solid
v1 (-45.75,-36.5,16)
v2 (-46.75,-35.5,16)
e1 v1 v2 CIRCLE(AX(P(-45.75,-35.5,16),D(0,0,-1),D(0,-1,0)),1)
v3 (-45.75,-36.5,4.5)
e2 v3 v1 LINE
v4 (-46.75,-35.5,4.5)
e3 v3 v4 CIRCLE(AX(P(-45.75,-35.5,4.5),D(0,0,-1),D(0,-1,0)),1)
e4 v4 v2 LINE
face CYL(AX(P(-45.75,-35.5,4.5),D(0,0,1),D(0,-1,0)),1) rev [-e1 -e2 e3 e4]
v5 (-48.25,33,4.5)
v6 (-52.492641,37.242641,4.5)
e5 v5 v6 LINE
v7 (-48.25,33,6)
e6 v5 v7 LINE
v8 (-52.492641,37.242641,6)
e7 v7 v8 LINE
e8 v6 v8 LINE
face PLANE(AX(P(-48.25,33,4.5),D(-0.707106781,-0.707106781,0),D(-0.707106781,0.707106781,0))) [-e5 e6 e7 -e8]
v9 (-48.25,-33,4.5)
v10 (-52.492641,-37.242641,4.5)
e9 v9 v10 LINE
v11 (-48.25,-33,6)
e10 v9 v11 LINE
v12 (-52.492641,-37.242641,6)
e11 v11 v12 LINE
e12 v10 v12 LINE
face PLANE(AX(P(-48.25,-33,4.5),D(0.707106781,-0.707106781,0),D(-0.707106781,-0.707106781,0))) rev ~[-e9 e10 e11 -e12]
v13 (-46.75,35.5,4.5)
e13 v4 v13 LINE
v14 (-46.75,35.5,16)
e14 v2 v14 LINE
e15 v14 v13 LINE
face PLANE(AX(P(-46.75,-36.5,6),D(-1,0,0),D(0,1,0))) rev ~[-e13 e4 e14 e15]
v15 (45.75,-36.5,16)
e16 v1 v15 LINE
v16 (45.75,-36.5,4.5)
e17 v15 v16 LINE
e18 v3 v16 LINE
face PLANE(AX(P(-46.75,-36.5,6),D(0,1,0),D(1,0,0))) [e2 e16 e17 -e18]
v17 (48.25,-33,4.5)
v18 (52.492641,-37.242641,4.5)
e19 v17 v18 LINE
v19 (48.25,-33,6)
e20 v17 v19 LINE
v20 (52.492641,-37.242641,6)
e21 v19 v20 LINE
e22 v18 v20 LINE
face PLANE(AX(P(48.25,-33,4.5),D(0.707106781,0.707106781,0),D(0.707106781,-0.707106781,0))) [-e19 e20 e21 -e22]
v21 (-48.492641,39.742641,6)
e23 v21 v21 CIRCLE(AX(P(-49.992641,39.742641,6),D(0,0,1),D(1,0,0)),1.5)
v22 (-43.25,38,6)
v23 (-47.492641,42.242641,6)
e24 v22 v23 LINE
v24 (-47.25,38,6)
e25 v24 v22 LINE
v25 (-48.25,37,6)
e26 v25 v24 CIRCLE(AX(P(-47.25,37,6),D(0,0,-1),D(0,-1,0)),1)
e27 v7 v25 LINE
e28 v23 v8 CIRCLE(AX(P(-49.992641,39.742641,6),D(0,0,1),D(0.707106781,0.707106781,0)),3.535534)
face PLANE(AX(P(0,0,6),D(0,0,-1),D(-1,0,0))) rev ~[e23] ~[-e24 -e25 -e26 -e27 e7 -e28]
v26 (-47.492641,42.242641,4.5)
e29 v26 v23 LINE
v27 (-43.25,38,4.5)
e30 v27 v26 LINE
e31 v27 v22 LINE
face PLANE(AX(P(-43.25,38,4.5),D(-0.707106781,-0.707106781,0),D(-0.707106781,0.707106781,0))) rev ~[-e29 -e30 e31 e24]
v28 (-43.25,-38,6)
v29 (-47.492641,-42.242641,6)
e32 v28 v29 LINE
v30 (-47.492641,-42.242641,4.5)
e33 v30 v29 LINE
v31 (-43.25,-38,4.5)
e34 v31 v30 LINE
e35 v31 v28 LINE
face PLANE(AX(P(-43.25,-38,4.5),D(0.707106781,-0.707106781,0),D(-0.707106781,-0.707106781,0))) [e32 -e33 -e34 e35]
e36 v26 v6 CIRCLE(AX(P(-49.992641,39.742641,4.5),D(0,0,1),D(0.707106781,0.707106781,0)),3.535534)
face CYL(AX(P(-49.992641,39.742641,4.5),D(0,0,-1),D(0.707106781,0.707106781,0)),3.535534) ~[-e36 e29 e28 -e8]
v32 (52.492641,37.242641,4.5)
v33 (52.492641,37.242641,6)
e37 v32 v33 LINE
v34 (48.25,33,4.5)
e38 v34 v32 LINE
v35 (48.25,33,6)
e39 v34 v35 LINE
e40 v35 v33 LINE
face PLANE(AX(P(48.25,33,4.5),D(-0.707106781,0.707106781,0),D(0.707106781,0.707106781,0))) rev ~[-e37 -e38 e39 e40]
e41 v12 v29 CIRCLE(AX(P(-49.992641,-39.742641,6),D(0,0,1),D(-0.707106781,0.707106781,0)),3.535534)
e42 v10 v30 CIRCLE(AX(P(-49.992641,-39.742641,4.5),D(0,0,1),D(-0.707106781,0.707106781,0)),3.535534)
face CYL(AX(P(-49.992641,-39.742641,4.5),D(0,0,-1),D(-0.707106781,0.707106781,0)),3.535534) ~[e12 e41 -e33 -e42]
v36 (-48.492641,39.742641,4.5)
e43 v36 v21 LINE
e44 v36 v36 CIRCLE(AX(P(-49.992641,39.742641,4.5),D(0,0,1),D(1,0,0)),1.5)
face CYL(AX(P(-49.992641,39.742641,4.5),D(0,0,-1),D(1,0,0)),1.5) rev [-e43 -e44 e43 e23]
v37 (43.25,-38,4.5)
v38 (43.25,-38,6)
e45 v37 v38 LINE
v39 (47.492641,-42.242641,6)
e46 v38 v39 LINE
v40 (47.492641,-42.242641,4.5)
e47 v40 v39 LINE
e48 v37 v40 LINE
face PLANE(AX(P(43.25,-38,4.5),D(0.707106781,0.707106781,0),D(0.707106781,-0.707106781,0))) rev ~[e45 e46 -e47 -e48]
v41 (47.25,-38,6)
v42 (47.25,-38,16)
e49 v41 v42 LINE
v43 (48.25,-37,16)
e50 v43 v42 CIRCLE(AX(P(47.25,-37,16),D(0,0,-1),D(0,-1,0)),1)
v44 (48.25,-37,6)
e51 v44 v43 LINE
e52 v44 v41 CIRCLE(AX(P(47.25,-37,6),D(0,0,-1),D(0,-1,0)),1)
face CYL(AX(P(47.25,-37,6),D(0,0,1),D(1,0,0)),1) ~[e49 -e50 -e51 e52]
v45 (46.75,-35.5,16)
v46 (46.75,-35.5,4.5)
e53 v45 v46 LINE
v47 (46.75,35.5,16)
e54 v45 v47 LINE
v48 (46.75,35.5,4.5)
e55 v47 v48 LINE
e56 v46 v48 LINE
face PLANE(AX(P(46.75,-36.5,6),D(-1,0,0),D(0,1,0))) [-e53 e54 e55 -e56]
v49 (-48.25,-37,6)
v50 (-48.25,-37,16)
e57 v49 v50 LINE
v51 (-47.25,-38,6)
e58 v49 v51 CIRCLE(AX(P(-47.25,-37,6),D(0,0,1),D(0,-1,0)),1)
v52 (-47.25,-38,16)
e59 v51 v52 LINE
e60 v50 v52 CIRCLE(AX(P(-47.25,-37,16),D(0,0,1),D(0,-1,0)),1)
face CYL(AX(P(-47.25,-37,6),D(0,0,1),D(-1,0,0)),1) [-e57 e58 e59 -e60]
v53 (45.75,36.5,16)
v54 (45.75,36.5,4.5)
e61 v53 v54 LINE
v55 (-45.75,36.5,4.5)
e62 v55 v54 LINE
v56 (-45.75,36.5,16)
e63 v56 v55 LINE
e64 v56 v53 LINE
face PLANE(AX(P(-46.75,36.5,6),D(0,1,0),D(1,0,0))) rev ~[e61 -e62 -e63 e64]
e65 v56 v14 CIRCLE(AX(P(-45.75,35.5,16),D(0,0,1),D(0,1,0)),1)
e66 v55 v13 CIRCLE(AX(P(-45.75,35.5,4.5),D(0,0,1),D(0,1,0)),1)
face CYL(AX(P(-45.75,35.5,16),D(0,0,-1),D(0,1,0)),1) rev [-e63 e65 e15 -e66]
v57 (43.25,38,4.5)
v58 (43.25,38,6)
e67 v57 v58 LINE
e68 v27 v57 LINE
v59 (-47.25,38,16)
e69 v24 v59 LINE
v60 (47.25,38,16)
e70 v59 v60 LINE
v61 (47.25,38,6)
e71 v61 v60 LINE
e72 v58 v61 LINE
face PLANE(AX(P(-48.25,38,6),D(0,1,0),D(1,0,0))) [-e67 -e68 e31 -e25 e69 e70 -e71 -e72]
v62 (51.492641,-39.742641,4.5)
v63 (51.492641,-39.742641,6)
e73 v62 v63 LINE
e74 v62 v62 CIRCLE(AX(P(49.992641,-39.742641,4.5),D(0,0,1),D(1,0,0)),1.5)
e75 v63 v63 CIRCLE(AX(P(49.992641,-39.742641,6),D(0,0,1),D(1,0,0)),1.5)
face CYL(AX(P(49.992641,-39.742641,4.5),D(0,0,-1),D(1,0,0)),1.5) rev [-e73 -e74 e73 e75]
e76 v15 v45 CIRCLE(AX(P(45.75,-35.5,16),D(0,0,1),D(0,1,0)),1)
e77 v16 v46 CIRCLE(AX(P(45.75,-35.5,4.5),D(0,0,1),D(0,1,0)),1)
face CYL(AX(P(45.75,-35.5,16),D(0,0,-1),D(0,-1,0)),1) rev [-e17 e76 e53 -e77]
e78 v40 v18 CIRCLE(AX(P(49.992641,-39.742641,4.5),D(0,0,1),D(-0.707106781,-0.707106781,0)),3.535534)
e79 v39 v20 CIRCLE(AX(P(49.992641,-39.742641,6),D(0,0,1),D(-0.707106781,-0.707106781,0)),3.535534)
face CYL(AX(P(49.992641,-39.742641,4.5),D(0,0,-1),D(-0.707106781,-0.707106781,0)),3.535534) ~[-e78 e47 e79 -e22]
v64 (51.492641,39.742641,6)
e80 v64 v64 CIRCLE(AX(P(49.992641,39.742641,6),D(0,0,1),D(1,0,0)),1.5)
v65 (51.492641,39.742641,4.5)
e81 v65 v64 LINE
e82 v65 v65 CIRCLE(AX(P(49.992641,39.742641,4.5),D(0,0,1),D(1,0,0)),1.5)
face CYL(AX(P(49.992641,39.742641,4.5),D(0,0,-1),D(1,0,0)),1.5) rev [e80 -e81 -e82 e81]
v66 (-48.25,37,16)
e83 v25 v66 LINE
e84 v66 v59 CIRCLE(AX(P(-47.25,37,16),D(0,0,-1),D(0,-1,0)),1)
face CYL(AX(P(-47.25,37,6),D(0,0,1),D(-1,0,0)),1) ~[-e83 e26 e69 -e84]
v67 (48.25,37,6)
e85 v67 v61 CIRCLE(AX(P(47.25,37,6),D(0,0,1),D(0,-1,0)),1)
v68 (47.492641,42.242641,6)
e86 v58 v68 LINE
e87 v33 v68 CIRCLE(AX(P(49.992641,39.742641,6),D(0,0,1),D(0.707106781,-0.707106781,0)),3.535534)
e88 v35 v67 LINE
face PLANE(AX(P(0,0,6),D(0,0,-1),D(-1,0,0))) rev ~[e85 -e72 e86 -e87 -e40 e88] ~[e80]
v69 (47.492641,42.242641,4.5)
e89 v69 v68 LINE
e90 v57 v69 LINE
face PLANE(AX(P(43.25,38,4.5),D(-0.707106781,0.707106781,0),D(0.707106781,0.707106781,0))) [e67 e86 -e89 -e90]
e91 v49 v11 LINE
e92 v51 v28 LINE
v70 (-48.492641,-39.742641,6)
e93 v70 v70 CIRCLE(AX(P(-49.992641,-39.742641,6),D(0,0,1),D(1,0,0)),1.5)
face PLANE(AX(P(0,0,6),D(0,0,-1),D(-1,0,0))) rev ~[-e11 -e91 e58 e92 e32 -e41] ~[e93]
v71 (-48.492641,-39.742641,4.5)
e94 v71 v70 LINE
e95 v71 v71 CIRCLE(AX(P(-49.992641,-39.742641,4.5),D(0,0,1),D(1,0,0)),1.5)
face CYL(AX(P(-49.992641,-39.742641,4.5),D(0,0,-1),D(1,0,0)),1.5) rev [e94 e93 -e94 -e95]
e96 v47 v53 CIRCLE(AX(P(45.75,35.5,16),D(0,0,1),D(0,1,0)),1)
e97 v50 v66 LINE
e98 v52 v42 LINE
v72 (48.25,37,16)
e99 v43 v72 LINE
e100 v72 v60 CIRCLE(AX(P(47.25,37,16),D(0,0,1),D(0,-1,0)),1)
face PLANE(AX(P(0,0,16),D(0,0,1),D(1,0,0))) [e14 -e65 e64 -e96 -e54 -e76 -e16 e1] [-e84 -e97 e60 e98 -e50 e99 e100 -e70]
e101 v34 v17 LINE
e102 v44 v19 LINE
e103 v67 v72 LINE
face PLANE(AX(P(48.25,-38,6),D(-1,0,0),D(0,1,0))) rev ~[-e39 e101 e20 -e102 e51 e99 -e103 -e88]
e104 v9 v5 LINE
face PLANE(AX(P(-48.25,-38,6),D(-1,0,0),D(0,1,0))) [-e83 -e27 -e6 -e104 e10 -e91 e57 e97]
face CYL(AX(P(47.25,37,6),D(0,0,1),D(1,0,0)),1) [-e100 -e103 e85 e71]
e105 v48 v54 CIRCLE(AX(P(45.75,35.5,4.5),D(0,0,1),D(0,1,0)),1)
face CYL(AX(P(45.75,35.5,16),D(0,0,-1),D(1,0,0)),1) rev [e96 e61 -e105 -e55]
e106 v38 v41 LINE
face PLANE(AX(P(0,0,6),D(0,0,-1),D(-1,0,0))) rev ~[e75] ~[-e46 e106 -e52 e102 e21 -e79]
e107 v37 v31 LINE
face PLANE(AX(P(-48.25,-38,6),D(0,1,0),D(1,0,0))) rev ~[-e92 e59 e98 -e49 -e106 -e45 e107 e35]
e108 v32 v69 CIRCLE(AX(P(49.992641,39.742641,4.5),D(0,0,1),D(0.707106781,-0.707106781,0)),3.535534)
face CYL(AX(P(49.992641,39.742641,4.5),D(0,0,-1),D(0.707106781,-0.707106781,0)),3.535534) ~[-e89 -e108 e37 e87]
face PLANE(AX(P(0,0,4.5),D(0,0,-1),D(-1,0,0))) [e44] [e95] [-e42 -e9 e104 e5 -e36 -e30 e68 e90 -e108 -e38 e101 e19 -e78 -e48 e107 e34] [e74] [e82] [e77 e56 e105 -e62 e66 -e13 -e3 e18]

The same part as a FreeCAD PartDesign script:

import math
import FreeCAD as App
import Part
import Sketcher
Q = App.Units.Quantity


def edges_at(feature, points):
    """Names of the edges that pass closest to the given points."""
    edges = feature.Shape.Edges
    near = lambda p: min(range(len(edges)), key=lambda i: edges[i].distToShape(Part.Vertex(*p))[0])
    return sorted({f"Edge{near(p) + 1}" for p in points})

doc = App.newDocument("Part")
params = doc.addObject("Spreadsheet::Sheet", "Params")
for row, (alias, value) in enumerate([
    ("sketch1_diameter", "3 mm"),
    ("sketch1_height", "66 mm"),
    ("sketch1_height2", "73 mm"),
    ("sketch1_length", "6 mm"),
    ("sketch1_width", "86.5 mm"),
    ("pad1_length", "1.5 mm"),
    ("sketch2_height", "76 mm"),
    ("sketch2_height2", "73 mm"),
    ("sketch2_width", "96.5 mm"),
    ("sketch2_width2", "93.5 mm"),
    ("pad2_length", "10 mm"),
    ("fillet_radius", "1 mm"),
], start=1):
    params.set(f"A{row}", alias)
    params.set(f"B{row}", "=" + value)
    params.setAlias(f"B{row}", alias)

body = doc.addObject("PartDesign::Body", "Body")

sketch1 = body.newObject("Sketcher::SketchObject", "Sketch")
sketch1.AttachmentSupport = (doc.getObject("XY_Plane"), [""])
sketch1.MapMode = "FlatFace"
sketch1.addGeometry([
    Part.LineSegment(App.Vector(-48.2, 33, 0), App.Vector(-48.2, -33, 0)),
    Part.LineSegment(App.Vector(-48.2, -33, 0), App.Vector(-52.5, -37.2, 0)),
    Part.ArcOfCircle(Part.Circle(App.Vector(-50, -39.7, 0), App.Vector(0, 0, 1), 3.5), math.radians(135), math.radians(315)),
    Part.LineSegment(App.Vector(-47.5, -42.2, 0), App.Vector(-43.2, -38, 0)),
    Part.LineSegment(App.Vector(-43.2, -38, 0), App.Vector(43.2, -38, 0)),
    Part.LineSegment(App.Vector(43.2, -38, 0), App.Vector(47.5, -42.2, 0)),
    Part.ArcOfCircle(Part.Circle(App.Vector(50, -39.7, 0), App.Vector(0, 0, 1), 3.5), math.radians(-135), math.radians(45)),
    Part.LineSegment(App.Vector(52.5, -37.2, 0), App.Vector(48.2, -33, 0)),
    Part.LineSegment(App.Vector(48.2, -33, 0), App.Vector(48.2, 33, 0)),
    Part.LineSegment(App.Vector(48.2, 33, 0), App.Vector(52.5, 37.2, 0)),
    Part.ArcOfCircle(Part.Circle(App.Vector(50, 39.7, 0), App.Vector(0, 0, 1), 3.5), math.radians(-45), math.radians(135)),
    Part.LineSegment(App.Vector(47.5, 42.2, 0), App.Vector(43.2, 38, 0)),
    Part.LineSegment(App.Vector(43.2, 38, 0), App.Vector(-43.2, 38, 0)),
    Part.LineSegment(App.Vector(-43.2, 38, 0), App.Vector(-47.5, 42.2, 0)),
    Part.ArcOfCircle(Part.Circle(App.Vector(-50, 39.7, 0), App.Vector(0, 0, 1), 3.5), math.radians(45), math.radians(225)),
    Part.LineSegment(App.Vector(-52.5, 37.2, 0), App.Vector(-48.2, 33, 0)),
    Part.Circle(App.Vector(50, -39.7, 0), App.Vector(0, 0, 1), 1.5),
    Part.LineSegment(App.Vector(-46.8, -36.5, 0), App.Vector(-46.8, 36.5, 0)),
    Part.LineSegment(App.Vector(-46.8, 36.5, 0), App.Vector(46.8, 36.5, 0)),
    Part.LineSegment(App.Vector(46.8, 36.5, 0), App.Vector(46.8, -36.5, 0)),
    Part.LineSegment(App.Vector(46.8, -36.5, 0), App.Vector(-46.8, -36.5, 0)),
    Part.Circle(App.Vector(-50, -39.7, 0), App.Vector(0, 0, 1), 1.5),
    Part.Circle(App.Vector(50, 39.7, 0), App.Vector(0, 0, 1), 1.5),
    Part.Circle(App.Vector(-50, 39.7, 0), App.Vector(0, 0, 1), 1.5),
], False)
sketch1.addConstraint([
    Sketcher.Constraint("Coincident", 0, 2, 1, 1),
    Sketcher.Constraint("Tangent", 1, 2, 2, 1),
    Sketcher.Constraint("Tangent", 2, 2, 3, 1),
    Sketcher.Constraint("Coincident", 3, 2, 4, 1),
    Sketcher.Constraint("Coincident", 4, 2, 5, 1),
    Sketcher.Constraint("Tangent", 5, 2, 6, 1),
    Sketcher.Constraint("Tangent", 6, 2, 7, 1),
    Sketcher.Constraint("Coincident", 7, 2, 8, 1),
    Sketcher.Constraint("Coincident", 8, 2, 9, 1),
    Sketcher.Constraint("Tangent", 9, 2, 10, 1),
    Sketcher.Constraint("Tangent", 10, 2, 11, 1),
    Sketcher.Constraint("Coincident", 11, 2, 12, 1),
    Sketcher.Constraint("Coincident", 12, 2, 13, 1),
    Sketcher.Constraint("Tangent", 13, 2, 14, 1),
    Sketcher.Constraint("Tangent", 14, 2, 15, 1),
    Sketcher.Constraint("Coincident", 15, 2, 0, 1),
    Sketcher.Constraint("Coincident", 17, 2, 18, 1),
    Sketcher.Constraint("Coincident", 18, 2, 19, 1),
    Sketcher.Constraint("Coincident", 19, 2, 20, 1),
    Sketcher.Constraint("Coincident", 20, 2, 17, 1),
    Sketcher.Constraint("Vertical", 0),
    Sketcher.Constraint("Horizontal", 4),
    Sketcher.Constraint("Vertical", 8),
    Sketcher.Constraint("Horizontal", 12),
    Sketcher.Constraint("Vertical", 17),
    Sketcher.Constraint("Horizontal", 18),
    Sketcher.Constraint("Vertical", 19),
    Sketcher.Constraint("Horizontal", 20),
    Sketcher.Constraint("Coincident", 16, 3, 6, 3),
    Sketcher.Constraint("Coincident", 21, 3, 2, 3),
    Sketcher.Constraint("Coincident", 22, 3, 10, 3),
    Sketcher.Constraint("Coincident", 23, 3, 14, 3),
    Sketcher.Constraint("Equal", 2, 6),
    Sketcher.Constraint("Equal", 6, 10),
    Sketcher.Constraint("Equal", 10, 14),
    Sketcher.Constraint("Equal", 16, 21),
    Sketcher.Constraint("Equal", 21, 22),
    Sketcher.Constraint("Equal", 22, 23),
    Sketcher.Constraint("Symmetric", 2, 3, 10, 3, -1, 1),
    Sketcher.Constraint("Symmetric", 6, 3, 14, 3, -1, 1),
    Sketcher.Constraint("Symmetric", 0, 2, 8, 2, -1, 1),
    Sketcher.Constraint("Symmetric", 3, 2, 11, 2, -1, 1),
    Sketcher.Constraint("Symmetric", 17, 2, 19, 2, -1, 1),
    Sketcher.Constraint("Symmetric", 2, 3, 6, 3, -2),
    Sketcher.Constraint("Parallel", 1, 3),
    Sketcher.Constraint("Perpendicular", 3, 5),
    Sketcher.Constraint("Parallel", 5, 7),
    Sketcher.Constraint("Perpendicular", 11, 13),
    Sketcher.Constraint("Parallel", 13, 15),
    Sketcher.Constraint("Horizontal", 2, 2, 5, 2),
    Sketcher.Constraint("Equal", 1, 3),
    Sketcher.Constraint("Diameter", 16, Q("3 mm")),
    Sketcher.Constraint("DistanceY", 0, 2, 0, 1, Q("66 mm")),
    Sketcher.Constraint("DistanceY", 17, 1, 17, 2, Q("73 mm")),
    Sketcher.Constraint("Distance", 1, Q("6 mm")),
    Sketcher.Constraint("DistanceX", 4, 1, 4, 2, Q("86.5 mm")),
    Sketcher.Constraint("DistanceX", 18, 1, 18, 2, Q("93.5 mm")),
    Sketcher.Constraint("DistanceY", 3, 2, -1, 1, Q("38 mm")),
])
sketch1.setExpression("Constraints[51]", "Params.sketch1_diameter")
sketch1.setExpression("Constraints[52]", "Params.sketch1_height")
sketch1.setExpression("Constraints[53]", "Params.sketch1_height2")
sketch1.setExpression("Constraints[54]", "Params.sketch1_length")
sketch1.setExpression("Constraints[55]", "Params.sketch1_width")
pad1 = body.newObject("PartDesign::Pad", "Pad")
pad1.Profile = sketch1
pad1.setExpression("Length", "Params.pad1_length")

sketch2 = body.newObject("Sketcher::SketchObject", "Sketch001")
sketch2.AttachmentSupport = (doc.getObject("XY_Plane"), [""])
sketch2.MapMode = "FlatFace"
sketch2.AttachmentOffset = App.Placement(App.Vector(0, 0, 1.5), App.Rotation())
sketch2.addGeometry([
    Part.LineSegment(App.Vector(-48, 38, 0), App.Vector(-48, -38, 0)),
    Part.LineSegment(App.Vector(-48, -38, 0), App.Vector(48, -38, 0)),
    Part.LineSegment(App.Vector(48, -38, 0), App.Vector(48, 38, 0)),
    Part.LineSegment(App.Vector(48, 38, 0), App.Vector(-48, 38, 0)),
    Part.LineSegment(App.Vector(47, -36, 0), App.Vector(-47, -36, 0)),
    Part.LineSegment(App.Vector(-47, -36, 0), App.Vector(-47, 36, 0)),
    Part.LineSegment(App.Vector(-47, 36, 0), App.Vector(47, 36, 0)),
    Part.LineSegment(App.Vector(47, 36, 0), App.Vector(47, -36, 0)),
], False)
sketch2.addConstraint([
    Sketcher.Constraint("Coincident", 0, 2, 1, 1),
    Sketcher.Constraint("Coincident", 1, 2, 2, 1),
    Sketcher.Constraint("Coincident", 2, 2, 3, 1),
    Sketcher.Constraint("Coincident", 3, 2, 0, 1),
    Sketcher.Constraint("Coincident", 4, 2, 5, 1),
    Sketcher.Constraint("Coincident", 5, 2, 6, 1),
    Sketcher.Constraint("Coincident", 6, 2, 7, 1),
    Sketcher.Constraint("Coincident", 7, 2, 4, 1),
    Sketcher.Constraint("Vertical", 0),
    Sketcher.Constraint("Horizontal", 1),
    Sketcher.Constraint("Vertical", 2),
    Sketcher.Constraint("Horizontal", 3),
    Sketcher.Constraint("Horizontal", 4),
    Sketcher.Constraint("Vertical", 5),
    Sketcher.Constraint("Horizontal", 6),
    Sketcher.Constraint("Vertical", 7),
    Sketcher.Constraint("Symmetric", 0, 2, 2, 2, -1, 1),
    Sketcher.Constraint("Symmetric", 4, 2, 6, 2, -1, 1),
    Sketcher.Constraint("DistanceY", 0, 2, 0, 1, Q("76 mm")),
    Sketcher.Constraint("DistanceY", 5, 1, 5, 2, Q("73 mm")),
    Sketcher.Constraint("DistanceX", 1, 1, 1, 2, Q("96.5 mm")),
    Sketcher.Constraint("DistanceX", 4, 2, 4, 1, Q("93.5 mm")),
])
sketch2.setExpression("Constraints[18]", "Params.sketch2_height")
sketch2.setExpression("Constraints[19]", "Params.sketch2_height2")
sketch2.setExpression("Constraints[20]", "Params.sketch2_width")
sketch2.setExpression("Constraints[21]", "Params.sketch2_width2")
pad2 = body.newObject("PartDesign::Pad", "Pad001")
pad2.Profile = sketch2
pad2.setExpression("Length", "Params.pad2_length")
doc.recompute()

fillet = body.newObject("PartDesign::Fillet", "Fillet")
fillet.Base = (pad2, edges_at(pad2, [
    (48.25, -38, 6.5),
    (-48.25, -38, 6.5),
    (48.25, 38, 6.5),
    (-48.25, 38, 6.5),
    (46.75, -36.5, 5.75),
    (-46.75, 36.5, 5.75),
    (46.75, 36.5, 5.75),
    (-46.75, -36.5, 5.75),
]))
fillet.setExpression("Radius", "Params.fillet_radius")
body2 = doc.addObject("PartDesign::Body", "Body001")
doc.recompute()

body.Placement = App.Placement(App.Vector(0, 0, 4.5), App.Rotation(App.Vector(0, 0, 1), 0))
boolean = body2.newObject("PartDesign::Boolean", "Boolean")
boolean.Type = "Fuse"
boolean.addObjects([body])

doc.recompute()
